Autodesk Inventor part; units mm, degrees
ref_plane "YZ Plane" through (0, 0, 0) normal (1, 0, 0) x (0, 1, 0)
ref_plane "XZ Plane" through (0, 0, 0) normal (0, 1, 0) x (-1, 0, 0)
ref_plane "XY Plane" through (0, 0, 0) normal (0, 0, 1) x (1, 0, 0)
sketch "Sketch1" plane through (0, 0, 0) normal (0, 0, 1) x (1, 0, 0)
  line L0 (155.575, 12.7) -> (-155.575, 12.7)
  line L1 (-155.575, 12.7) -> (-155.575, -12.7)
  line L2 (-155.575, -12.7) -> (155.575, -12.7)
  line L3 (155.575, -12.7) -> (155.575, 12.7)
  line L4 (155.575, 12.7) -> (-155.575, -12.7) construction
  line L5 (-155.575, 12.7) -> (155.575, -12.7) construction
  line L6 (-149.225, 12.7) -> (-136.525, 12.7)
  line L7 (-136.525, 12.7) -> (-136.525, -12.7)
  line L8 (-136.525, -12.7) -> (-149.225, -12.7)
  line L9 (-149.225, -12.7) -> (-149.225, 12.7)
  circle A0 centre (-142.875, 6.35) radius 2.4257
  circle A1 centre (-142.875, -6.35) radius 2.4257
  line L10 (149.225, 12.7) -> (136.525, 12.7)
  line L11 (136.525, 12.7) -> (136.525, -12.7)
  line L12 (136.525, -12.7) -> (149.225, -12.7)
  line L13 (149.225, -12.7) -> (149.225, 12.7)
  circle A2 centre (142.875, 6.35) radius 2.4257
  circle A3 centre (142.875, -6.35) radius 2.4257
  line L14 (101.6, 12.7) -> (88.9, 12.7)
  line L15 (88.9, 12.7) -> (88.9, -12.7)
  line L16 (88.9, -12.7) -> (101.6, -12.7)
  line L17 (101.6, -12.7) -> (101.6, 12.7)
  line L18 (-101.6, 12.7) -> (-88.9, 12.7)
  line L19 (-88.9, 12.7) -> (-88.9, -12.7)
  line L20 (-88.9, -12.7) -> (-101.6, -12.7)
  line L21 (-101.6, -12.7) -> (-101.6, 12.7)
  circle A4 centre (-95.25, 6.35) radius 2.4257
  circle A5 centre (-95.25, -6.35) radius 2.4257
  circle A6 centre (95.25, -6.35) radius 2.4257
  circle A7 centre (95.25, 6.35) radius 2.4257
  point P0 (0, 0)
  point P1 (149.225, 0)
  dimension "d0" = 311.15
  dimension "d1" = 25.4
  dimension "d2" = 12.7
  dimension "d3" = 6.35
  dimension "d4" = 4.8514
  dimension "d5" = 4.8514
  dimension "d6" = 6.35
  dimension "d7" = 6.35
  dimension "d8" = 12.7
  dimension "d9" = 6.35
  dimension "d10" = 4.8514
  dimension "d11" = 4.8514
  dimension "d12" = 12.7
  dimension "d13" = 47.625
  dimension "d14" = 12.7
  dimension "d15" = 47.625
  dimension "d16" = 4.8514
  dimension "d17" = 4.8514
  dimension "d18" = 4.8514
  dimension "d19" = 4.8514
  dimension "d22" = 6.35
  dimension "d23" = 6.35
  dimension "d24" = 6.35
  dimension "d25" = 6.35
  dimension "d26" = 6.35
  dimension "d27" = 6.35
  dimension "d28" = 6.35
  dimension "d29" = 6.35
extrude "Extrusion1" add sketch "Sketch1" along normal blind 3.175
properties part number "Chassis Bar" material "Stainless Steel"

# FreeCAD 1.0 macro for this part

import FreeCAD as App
import Part
import Sketcher

V = App.Vector
Q = App.Units.Quantity

doc = App.newDocument("Part")
params = doc.addObject("Spreadsheet::Sheet", "Params")
for row, (alias, value) in enumerate([
    ("sketch1_height", "1 in"),
    ("sketch1_diameter", "0.191 in"),
    ("sketch1_width", "12.25 in"),
    ("pad1_length", "0.125 in"),
], start=1):
    params.set(f"A{row}", alias)
    params.set(f"B{row}", "=" + value)
    params.setAlias(f"B{row}", alias)

body = doc.addObject("PartDesign::Body", "Body")

sketch1 = body.newObject("Sketcher::SketchObject", "Sketch")
sketch1.AttachmentSupport = (doc.getObject("XY_Plane"), [""])
sketch1.MapMode = "FlatFace"
sketch1.addGeometry(Part.LineSegment(V(155.6, -12.7, 0), V(155.6, 12.7, 0)), False)
sketch1.addGeometry(Part.LineSegment(V(155.6, 12.7, 0), V(-155.6, 12.7, 0)), False)
sketch1.addGeometry(Part.LineSegment(V(-155.6, 12.7, 0), V(-155.6, -12.7, 0)), False)
sketch1.addGeometry(Part.LineSegment(V(-155.6, -12.7, 0), V(155.6, -12.7, 0)), False)
sketch1.addGeometry(Part.Circle(V(142.9, 6.3, 0), V(0, 0, 1), 2.4), False)
sketch1.addGeometry(Part.Circle(V(142.9, -6.3, 0), V(0, 0, 1), 2.4), False)
sketch1.addGeometry(Part.Circle(V(95.2, 6.3, 0), V(0, 0, 1), 2.4), False)
sketch1.addGeometry(Part.Circle(V(95.2, -6.3, 0), V(0, 0, 1), 2.4), False)
sketch1.addGeometry(Part.Circle(V(-95.2, 6.3, 0), V(0, 0, 1), 2.4), False)
sketch1.addGeometry(Part.Circle(V(-95.2, -6.3, 0), V(0, 0, 1), 2.4), False)
sketch1.addGeometry(Part.Circle(V(-142.9, 6.3, 0), V(0, 0, 1), 2.4), False)
sketch1.addGeometry(Part.Circle(V(-142.9, -6.3, 0), V(0, 0, 1), 2.4), False)
sketch1.addConstraint(Sketcher.Constraint("Coincident", 0, 2, 1, 1))
sketch1.addConstraint(Sketcher.Constraint("Coincident", 1, 2, 2, 1))
sketch1.addConstraint(Sketcher.Constraint("Coincident", 2, 2, 3, 1))
sketch1.addConstraint(Sketcher.Constraint("Coincident", 3, 2, 0, 1))
sketch1.addConstraint(Sketcher.Constraint("Vertical", 0))
sketch1.addConstraint(Sketcher.Constraint("Horizontal", 1))
sketch1.addConstraint(Sketcher.Constraint("Vertical", 2))
sketch1.addConstraint(Sketcher.Constraint("Horizontal", 3))
sketch1.addConstraint(Sketcher.Constraint("Equal", 4, 5))
sketch1.addConstraint(Sketcher.Constraint("Equal", 5, 6))
sketch1.addConstraint(Sketcher.Constraint("Equal", 6, 7))
sketch1.addConstraint(Sketcher.Constraint("Equal", 7, 8))
sketch1.addConstraint(Sketcher.Constraint("Equal", 8, 9))
sketch1.addConstraint(Sketcher.Constraint("Equal", 9, 10))
sketch1.addConstraint(Sketcher.Constraint("Equal", 10, 11))
sketch1.addConstraint(Sketcher.Constraint("Symmetric", 7, 3, 8, 3, -1, 1))
sketch1.addConstraint(Sketcher.Constraint("Symmetric", 6, 3, 9, 3, -1, 1))
sketch1.addConstraint(Sketcher.Constraint("Symmetric", 5, 3, 10, 3, -1, 1))
sketch1.addConstraint(Sketcher.Constraint("Symmetric", 4, 3, 11, 3, -1, 1))
sketch1.addConstraint(Sketcher.Constraint("Symmetric", 0, 2, 2, 2, -1, 1))
sketch1.addConstraint(Sketcher.Constraint("Symmetric", 6, 3, 8, 3, -2))
sketch1.addConstraint(Sketcher.Constraint("Symmetric", 4, 3, 10, 3, -2))
sketch1.addConstraint(Sketcher.Constraint("Horizontal", 4, 3, 6, 3))
sketch1.addConstraint(Sketcher.Constraint("DistanceY", 0, 1, 0, 2, Q("1 in")))
sketch1.addConstraint(Sketcher.Constraint("Diameter", 4, Q("0.191 in")))
sketch1.addConstraint(Sketcher.Constraint("DistanceX", 1, 2, 1, 1, Q("12.25 in")))
sketch1.addConstraint(Sketcher.Constraint("DistanceY", 5, 3, 4, 3, Q("0.5 in")))
sketch1.addConstraint(Sketcher.Constraint("DistanceX", 4, 3, 0, 2, Q("0.5 in")))
sketch1.addConstraint(Sketcher.Constraint("DistanceX", 6, 3, 4, 3, Q("1.875 in")))
sketch1.setExpression("Constraints[23]", "Params.sketch1_height")
sketch1.setExpression("Constraints[24]", "Params.sketch1_diameter")
sketch1.setExpression("Constraints[25]", "Params.sketch1_width")
pad1 = body.newObject("PartDesign::Pad", "Pad")
pad1.Profile = sketch1
pad1.setExpression("Length", "Params.pad1_length")

doc.recompute()
